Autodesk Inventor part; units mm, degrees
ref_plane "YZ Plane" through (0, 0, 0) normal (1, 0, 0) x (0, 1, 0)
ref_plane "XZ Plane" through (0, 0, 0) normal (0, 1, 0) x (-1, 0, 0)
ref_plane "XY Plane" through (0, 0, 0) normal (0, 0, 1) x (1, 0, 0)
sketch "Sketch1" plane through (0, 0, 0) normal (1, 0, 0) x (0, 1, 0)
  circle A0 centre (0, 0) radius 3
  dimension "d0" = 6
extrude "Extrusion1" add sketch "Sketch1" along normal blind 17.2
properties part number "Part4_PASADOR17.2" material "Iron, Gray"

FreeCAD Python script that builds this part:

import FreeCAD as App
import Part
import Sketcher
from FreeCAD import Vector

doc = App.newDocument("Part")
body = doc.addObject("PartDesign::Body", "Body")

sketch1 = doc.addObject("Sketcher::SketchObject", "Sketch")
body.addObject(sketch1)
sketch1.AttachmentSupport = (doc.YZ_Plane, [""])
sketch1.MapMode = "FlatFace"
sketch1.addGeometry(Part.Circle(Vector(0, 0, 0), Vector(0, 0, 1), 3), False)
sketch1.addConstraint([
    Sketcher.Constraint("Coincident", 0, 3, -1, 1),
    Sketcher.Constraint("Diameter", 0, 6.0),
])
pad1 = doc.addObject("PartDesign::Pad", "Pad")
body.addObject(pad1)
pad1.Profile = sketch1
pad1.Length = 17.2

doc.recompute()
